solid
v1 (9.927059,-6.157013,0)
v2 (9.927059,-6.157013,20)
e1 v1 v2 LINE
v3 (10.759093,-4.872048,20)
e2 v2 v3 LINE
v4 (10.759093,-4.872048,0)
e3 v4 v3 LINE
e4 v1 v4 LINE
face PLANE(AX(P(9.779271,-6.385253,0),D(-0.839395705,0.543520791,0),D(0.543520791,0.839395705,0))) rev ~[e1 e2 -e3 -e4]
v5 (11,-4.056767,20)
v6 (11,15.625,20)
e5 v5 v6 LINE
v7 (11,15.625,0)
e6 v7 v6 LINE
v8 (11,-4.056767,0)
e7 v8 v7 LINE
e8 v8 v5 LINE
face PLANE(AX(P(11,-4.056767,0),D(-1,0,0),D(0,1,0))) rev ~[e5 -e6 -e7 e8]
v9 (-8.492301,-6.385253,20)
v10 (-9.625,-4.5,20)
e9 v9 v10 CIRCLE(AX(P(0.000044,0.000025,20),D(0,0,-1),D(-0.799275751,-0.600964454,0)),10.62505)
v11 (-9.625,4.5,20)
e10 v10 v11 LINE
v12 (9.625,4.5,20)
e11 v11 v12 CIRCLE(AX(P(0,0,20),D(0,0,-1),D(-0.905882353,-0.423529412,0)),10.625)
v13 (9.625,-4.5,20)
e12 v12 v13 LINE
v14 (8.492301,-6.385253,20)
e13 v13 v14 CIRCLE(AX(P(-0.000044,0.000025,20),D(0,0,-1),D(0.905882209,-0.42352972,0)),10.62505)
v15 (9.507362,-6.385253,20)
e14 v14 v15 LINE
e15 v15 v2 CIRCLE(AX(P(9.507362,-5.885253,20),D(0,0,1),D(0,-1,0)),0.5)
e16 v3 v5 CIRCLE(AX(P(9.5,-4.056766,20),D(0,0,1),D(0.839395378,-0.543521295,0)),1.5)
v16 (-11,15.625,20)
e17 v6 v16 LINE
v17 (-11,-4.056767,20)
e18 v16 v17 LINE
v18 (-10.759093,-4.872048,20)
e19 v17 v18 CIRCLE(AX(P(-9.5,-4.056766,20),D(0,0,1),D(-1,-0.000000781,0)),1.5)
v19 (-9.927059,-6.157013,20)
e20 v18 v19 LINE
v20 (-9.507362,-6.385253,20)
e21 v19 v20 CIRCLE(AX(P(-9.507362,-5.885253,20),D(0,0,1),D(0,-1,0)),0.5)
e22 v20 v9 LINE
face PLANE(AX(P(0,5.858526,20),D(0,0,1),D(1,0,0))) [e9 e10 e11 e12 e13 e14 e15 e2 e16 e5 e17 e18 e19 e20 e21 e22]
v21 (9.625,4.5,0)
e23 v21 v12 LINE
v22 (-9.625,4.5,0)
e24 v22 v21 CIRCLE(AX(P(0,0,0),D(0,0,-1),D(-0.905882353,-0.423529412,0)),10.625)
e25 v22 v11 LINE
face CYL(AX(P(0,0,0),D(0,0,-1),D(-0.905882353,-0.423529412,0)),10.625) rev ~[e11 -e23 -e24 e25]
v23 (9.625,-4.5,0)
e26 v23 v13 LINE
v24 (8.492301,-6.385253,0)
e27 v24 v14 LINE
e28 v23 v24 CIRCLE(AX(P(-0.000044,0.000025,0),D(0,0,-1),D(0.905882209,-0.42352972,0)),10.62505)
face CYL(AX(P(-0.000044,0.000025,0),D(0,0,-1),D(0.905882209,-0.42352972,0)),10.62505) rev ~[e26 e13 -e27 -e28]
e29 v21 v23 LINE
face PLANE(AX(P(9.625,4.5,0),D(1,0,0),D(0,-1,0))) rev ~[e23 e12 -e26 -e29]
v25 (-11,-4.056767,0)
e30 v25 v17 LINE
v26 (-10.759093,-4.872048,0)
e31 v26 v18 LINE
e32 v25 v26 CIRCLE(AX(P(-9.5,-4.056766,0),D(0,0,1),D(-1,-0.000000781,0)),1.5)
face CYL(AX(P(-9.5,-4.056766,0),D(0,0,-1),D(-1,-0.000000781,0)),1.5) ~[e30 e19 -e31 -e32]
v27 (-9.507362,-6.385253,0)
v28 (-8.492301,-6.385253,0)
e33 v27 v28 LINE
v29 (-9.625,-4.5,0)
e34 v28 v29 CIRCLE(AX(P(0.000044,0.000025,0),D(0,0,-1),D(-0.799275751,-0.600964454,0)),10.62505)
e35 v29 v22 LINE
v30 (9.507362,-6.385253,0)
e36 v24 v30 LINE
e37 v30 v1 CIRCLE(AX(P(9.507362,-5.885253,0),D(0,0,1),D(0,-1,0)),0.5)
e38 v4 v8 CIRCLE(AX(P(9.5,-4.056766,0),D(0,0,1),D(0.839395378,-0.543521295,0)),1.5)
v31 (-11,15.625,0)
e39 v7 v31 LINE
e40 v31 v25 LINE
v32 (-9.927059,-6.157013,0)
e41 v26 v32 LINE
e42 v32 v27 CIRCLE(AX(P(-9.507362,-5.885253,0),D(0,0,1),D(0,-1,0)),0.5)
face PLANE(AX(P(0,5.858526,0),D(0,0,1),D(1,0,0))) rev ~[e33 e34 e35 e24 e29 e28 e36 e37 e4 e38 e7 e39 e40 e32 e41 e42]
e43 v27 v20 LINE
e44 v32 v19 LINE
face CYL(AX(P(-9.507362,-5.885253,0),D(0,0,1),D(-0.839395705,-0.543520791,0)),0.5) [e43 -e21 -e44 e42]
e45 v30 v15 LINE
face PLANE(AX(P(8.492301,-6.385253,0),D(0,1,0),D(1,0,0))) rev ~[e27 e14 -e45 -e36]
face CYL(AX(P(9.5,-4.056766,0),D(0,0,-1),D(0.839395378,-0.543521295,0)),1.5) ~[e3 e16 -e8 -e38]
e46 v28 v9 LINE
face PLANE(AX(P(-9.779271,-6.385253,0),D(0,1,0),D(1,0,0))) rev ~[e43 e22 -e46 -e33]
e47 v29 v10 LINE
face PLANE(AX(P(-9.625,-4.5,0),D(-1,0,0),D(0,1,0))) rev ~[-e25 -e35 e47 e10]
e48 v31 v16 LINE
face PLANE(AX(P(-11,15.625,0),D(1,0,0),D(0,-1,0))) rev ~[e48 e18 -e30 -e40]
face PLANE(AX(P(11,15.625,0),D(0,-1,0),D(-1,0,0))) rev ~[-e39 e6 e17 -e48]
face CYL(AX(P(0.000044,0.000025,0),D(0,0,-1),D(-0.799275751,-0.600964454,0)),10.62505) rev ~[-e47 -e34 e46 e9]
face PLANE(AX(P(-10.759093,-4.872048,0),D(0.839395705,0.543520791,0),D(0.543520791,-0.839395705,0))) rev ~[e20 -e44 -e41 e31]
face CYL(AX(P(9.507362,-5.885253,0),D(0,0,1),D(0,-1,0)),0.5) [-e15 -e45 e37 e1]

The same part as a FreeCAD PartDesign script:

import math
import FreeCAD as App
import Part
import Sketcher


def edges_at(feature, points):
    """Names of the edges that pass closest to the given points."""
    edges = feature.Shape.Edges
    near = lambda p: min(range(len(edges)), key=lambda i: edges[i].distToShape(Part.Vertex(*p))[0])
    return sorted({f"Edge{near(p) + 1}" for p in points})

doc = App.newDocument("Part")
body = doc.addObject("PartDesign::Body", "Body")

# Sketch on XY plane
sketch1 = body.newObject("Sketcher::SketchObject", "Sketch")
sketch1.AttachmentSupport = (doc.getObject("XY_Plane"), [""])
sketch1.MapMode = "FlatFace"
sketch1.addGeometry(Part.ArcOfCircle(Part.Circle(App.Vector(-0.000044, 0.000025, 0), App.Vector(0, 0, 1), 10.62505), math.radians(-36.939003), math.radians(-25.057635)), False)
sketch1.addGeometry(Part.LineSegment(App.Vector(8.492301, -6.385253, 0), App.Vector(9.779271, -6.385253, 0)), False)
sketch1.addGeometry(Part.LineSegment(App.Vector(9.779271, -6.385253, 0), App.Vector(10.759093, -4.872048, 0)), False)
sketch1.addGeometry(Part.ArcOfCircle(Part.Circle(App.Vector(9.5, -4.056766, 0), App.Vector(0, 0, 1), 1.5), math.radians(-32.923672), math.radians(-0.000045)), False)
sketch1.addGeometry(Part.LineSegment(App.Vector(11, -4.056767, 0), App.Vector(11, 15.625, 0)), False)
sketch1.addGeometry(Part.LineSegment(App.Vector(11, 15.625, 0), App.Vector(-11, 15.625, 0)), False)
sketch1.addGeometry(Part.LineSegment(App.Vector(-11, 15.625, 0), App.Vector(-11, -4.056767, 0)), False)
sketch1.addGeometry(Part.ArcOfCircle(Part.Circle(App.Vector(-9.5, -4.056766, 0), App.Vector(0, 0, 1), 1.5), math.radians(-179.999955), math.radians(-147.076328)), False)
sketch1.addGeometry(Part.LineSegment(App.Vector(-10.759093, -4.872048, 0), App.Vector(-9.779271, -6.385253, 0)), False)
sketch1.addGeometry(Part.LineSegment(App.Vector(-9.779271, -6.385253, 0), App.Vector(-8.492301, -6.385253, 0)), False)
sketch1.addGeometry(Part.ArcOfCircle(Part.Circle(App.Vector(0.000044, 0.000025, 0), App.Vector(0, 0, 1), 10.62505), math.radians(-154.942365), math.radians(-143.060997)), False)
sketch1.addGeometry(Part.LineSegment(App.Vector(-9.625, -4.5, 0), App.Vector(-9.625, 4.5, 0)), False)
sketch1.addGeometry(Part.ArcOfCircle(Part.Circle(App.Vector(0, 0, 0), App.Vector(0, 0, 1), 10.625), math.radians(25.057615), math.radians(154.942385)), False)
sketch1.addGeometry(Part.LineSegment(App.Vector(9.625, 4.5, 0), App.Vector(9.625, -4.5, 0)), False)
sketch1.addConstraint(Sketcher.Constraint("Coincident", 0, 1, 1, 1))
sketch1.addConstraint(Sketcher.Constraint("Coincident", 1, 2, 2, 1))
sketch1.addConstraint(Sketcher.Constraint("Tangent", 2, 2, 3, 1))
sketch1.addConstraint(Sketcher.Constraint("Tangent", 3, 2, 4, 1))
sketch1.addConstraint(Sketcher.Constraint("Coincident", 4, 2, 5, 1))
sketch1.addConstraint(Sketcher.Constraint("Coincident", 5, 2, 6, 1))
sketch1.addConstraint(Sketcher.Constraint("Tangent", 6, 2, 7, 1))
sketch1.addConstraint(Sketcher.Constraint("Tangent", 7, 2, 8, 1))
sketch1.addConstraint(Sketcher.Constraint("Coincident", 8, 2, 9, 1))
sketch1.addConstraint(Sketcher.Constraint("Coincident", 9, 2, 10, 2))
sketch1.addConstraint(Sketcher.Constraint("Coincident", 10, 1, 11, 1))
sketch1.addConstraint(Sketcher.Constraint("Coincident", 11, 2, 12, 2))
sketch1.addConstraint(Sketcher.Constraint("Coincident", 12, 1, 13, 1))
sketch1.addConstraint(Sketcher.Constraint("Coincident", 13, 2, 0, 2))
sketch1.addConstraint(Sketcher.Constraint("Horizontal", 1))
sketch1.addConstraint(Sketcher.Constraint("Vertical", 4))
sketch1.addConstraint(Sketcher.Constraint("Horizontal", 5))
sketch1.addConstraint(Sketcher.Constraint("Vertical", 6))
sketch1.addConstraint(Sketcher.Constraint("Horizontal", 9))
sketch1.addConstraint(Sketcher.Constraint("Vertical", 11))
sketch1.addConstraint(Sketcher.Constraint("Vertical", 13))
sketch1.addConstraint(Sketcher.Constraint("Coincident", 12, 3, -1, 1))
sketch1.addConstraint(Sketcher.Constraint("Equal", 3, 7))
sketch1.addConstraint(Sketcher.Constraint("Equal", 0, 10))
sketch1.addConstraint(Sketcher.Constraint("Symmetric", 10, 1, 12, 1, -1, 1))
sketch1.addConstraint(Sketcher.Constraint("Symmetric", 3, 3, 7, 3, -2))
sketch1.addConstraint(Sketcher.Constraint("Symmetric", 0, 3, 10, 3, -2))
sketch1.addConstraint(Sketcher.Constraint("Symmetric", 1, 2, 8, 2, -2))
sketch1.addConstraint(Sketcher.Constraint("Radius", 3, 1.5))
sketch1.addConstraint(Sketcher.Constraint("DistanceX", 5, 2, 5, 1, 22.0))
sketch1.addConstraint(Sketcher.Constraint("DistanceY", 11, 1, 11, 2, 9.0))
sketch1.addConstraint(Sketcher.Constraint("Radius", 12, 10.625))
sketch1.addConstraint(Sketcher.Constraint("Radius", 0, 10.62505))
sketch1.addConstraint(Sketcher.Constraint("DistanceY", -1, 1, 4, 2, 15.625))
sketch1.addConstraint(Sketcher.Constraint("DistanceX", 1, 1, 1, 2, 1.28697))
sketch1.addConstraint(Sketcher.Constraint("DistanceX", -1, 1, 0, 1, 8.492301))
sketch1.addConstraint(Sketcher.Constraint("Distance", 2, 1.802731))
sketch1.addConstraint(Sketcher.Constraint("DistanceY", 4, 1, 4, 2, 19.681767))
pad1 = body.newObject("PartDesign::Pad", "Pad")
pad1.Profile = sketch1
pad1.Length = 20
doc.recompute()

fillet = body.newObject("PartDesign::Fillet", "Fillet")
fillet.Base = (pad1, edges_at(pad1, [(-9.779, -6.385, 10), (9.779, -6.385, 10)]))
fillet.Radius = 0.5

doc.recompute()
